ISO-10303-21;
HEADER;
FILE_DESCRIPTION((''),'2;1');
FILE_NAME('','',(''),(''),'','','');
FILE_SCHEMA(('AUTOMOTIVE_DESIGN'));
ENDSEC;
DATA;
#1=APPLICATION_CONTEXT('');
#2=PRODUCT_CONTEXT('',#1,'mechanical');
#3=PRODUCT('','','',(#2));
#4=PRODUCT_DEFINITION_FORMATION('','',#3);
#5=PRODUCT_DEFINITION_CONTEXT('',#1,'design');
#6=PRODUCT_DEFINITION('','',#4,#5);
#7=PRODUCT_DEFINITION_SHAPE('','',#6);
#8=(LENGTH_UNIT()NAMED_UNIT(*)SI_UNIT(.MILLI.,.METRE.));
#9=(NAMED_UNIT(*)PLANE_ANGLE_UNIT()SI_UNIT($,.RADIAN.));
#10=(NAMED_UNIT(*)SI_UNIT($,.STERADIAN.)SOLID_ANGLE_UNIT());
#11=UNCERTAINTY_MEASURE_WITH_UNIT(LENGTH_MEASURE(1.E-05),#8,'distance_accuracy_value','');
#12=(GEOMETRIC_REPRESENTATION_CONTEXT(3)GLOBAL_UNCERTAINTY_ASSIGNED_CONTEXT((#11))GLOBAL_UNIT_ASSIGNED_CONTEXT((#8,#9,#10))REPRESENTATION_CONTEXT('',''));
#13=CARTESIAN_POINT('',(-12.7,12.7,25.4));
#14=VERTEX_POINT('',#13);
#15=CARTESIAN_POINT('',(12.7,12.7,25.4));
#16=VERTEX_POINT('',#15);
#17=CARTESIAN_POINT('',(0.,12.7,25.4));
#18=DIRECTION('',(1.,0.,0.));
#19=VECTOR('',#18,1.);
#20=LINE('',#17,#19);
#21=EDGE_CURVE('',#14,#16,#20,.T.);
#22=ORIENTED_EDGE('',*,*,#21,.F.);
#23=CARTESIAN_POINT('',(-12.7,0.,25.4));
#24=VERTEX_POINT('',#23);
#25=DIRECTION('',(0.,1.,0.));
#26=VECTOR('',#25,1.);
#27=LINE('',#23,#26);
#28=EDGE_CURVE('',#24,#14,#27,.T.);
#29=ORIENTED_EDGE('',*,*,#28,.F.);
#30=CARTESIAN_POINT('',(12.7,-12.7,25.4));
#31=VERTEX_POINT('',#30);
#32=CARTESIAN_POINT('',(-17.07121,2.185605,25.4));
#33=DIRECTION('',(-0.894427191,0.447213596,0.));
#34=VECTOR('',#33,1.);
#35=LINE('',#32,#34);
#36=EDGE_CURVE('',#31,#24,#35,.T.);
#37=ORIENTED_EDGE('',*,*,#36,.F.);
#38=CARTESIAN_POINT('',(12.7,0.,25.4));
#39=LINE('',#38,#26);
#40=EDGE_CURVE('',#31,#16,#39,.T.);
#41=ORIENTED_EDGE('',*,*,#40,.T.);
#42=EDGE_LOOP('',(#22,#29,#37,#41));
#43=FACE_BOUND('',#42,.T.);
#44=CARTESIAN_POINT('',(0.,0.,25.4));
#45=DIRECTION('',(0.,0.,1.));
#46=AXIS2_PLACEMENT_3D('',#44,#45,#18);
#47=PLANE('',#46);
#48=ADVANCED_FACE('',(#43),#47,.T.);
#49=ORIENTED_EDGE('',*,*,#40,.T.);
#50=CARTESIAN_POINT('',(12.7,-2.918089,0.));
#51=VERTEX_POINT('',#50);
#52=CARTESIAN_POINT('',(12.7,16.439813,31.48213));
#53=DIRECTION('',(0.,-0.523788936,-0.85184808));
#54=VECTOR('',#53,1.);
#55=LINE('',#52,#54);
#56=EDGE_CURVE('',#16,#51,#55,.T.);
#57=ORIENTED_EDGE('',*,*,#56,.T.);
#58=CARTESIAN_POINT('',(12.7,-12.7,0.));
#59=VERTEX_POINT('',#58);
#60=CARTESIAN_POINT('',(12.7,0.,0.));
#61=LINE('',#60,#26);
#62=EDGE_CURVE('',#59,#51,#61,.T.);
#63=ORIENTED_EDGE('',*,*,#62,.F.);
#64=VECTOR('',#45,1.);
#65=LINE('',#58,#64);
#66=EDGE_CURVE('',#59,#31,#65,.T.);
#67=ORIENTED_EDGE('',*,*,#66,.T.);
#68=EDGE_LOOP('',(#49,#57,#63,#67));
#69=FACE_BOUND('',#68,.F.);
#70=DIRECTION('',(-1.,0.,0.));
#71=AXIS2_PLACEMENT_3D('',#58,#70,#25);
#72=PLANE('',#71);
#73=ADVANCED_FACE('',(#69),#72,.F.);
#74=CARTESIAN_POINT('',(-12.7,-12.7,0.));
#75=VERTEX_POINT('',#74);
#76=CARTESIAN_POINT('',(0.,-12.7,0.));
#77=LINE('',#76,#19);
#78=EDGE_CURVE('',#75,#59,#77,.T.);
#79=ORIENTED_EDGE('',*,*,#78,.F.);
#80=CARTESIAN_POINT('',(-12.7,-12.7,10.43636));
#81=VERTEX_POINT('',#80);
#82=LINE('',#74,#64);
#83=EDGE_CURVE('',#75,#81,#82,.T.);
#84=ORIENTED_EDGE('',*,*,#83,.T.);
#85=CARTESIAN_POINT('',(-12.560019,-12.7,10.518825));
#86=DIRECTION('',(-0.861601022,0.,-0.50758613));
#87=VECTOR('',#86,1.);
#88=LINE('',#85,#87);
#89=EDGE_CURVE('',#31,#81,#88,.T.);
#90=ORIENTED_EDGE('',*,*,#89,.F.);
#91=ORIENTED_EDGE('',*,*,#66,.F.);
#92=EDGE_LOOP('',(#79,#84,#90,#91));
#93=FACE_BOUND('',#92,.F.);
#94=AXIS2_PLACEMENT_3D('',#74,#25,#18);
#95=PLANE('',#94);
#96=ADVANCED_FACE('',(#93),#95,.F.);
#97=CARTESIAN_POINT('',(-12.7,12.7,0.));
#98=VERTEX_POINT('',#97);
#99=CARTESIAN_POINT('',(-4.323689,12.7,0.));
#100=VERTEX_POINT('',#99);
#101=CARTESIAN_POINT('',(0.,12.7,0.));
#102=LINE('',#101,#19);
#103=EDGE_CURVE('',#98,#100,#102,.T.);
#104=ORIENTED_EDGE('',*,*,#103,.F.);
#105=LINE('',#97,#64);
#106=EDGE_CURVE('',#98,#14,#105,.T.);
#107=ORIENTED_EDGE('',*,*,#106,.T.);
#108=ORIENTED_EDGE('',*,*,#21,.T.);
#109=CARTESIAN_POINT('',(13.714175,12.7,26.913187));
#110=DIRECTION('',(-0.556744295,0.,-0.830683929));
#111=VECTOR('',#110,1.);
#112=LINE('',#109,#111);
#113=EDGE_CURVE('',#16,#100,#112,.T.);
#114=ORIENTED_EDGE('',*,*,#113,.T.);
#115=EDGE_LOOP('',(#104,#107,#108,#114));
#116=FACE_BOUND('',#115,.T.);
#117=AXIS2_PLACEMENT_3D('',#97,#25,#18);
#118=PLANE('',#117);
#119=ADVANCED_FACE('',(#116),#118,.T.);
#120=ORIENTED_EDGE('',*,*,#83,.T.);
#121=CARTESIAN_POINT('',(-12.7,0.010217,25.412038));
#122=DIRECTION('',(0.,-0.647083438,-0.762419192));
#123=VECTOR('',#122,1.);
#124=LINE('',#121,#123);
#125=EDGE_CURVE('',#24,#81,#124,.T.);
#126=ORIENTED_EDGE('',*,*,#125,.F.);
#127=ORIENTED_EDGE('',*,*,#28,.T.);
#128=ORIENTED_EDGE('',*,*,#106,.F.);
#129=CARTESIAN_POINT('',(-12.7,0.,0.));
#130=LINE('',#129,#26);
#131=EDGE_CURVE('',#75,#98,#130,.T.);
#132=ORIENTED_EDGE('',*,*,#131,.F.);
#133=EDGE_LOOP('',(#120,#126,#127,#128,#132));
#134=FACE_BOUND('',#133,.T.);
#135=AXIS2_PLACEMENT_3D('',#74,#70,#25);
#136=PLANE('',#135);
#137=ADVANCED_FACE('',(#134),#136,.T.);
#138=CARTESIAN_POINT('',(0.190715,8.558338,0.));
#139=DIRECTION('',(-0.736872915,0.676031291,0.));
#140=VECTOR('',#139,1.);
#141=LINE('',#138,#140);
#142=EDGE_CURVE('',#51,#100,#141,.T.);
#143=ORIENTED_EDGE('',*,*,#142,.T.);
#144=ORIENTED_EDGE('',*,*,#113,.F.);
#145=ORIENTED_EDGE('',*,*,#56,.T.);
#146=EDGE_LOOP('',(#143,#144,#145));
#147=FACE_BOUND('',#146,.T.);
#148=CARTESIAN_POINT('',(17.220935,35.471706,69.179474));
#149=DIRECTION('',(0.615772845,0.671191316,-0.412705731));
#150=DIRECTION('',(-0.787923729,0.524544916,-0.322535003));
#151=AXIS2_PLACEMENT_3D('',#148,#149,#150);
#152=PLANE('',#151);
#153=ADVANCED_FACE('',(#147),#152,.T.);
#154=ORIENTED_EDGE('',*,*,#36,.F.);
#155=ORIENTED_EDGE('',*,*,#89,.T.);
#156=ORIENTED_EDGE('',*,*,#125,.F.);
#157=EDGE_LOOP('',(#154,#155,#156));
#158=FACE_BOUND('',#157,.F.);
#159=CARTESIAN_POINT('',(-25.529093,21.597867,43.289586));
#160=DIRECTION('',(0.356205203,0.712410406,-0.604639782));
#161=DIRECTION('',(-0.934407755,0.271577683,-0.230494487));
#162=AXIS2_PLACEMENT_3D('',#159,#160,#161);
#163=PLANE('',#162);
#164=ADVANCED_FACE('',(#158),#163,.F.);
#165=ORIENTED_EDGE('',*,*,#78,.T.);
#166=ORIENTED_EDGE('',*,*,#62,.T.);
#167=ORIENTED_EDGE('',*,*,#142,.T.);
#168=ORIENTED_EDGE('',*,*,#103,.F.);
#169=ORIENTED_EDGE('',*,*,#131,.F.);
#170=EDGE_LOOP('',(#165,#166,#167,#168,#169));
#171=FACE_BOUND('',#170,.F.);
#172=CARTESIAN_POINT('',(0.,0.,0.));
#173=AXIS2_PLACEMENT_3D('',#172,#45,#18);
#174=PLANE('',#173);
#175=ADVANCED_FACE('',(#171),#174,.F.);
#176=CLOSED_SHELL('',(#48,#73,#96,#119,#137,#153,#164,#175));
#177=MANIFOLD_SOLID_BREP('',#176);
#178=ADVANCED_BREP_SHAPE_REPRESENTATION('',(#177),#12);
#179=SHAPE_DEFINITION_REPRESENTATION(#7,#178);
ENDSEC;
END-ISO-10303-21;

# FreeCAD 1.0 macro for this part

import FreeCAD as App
import Part
import Sketcher

V = App.Vector
Q = App.Units.Quantity

doc = App.newDocument("Part")
body = doc.addObject("PartDesign::Body", "Body")

sketch1 = body.newObject("Sketcher::SketchObject", "Sketch")
sketch1.AttachmentSupport = (doc.getObject("XY_Plane"), [""])
sketch1.MapMode = "FlatFace"
sketch1.addGeometry([
    Part.LineSegment(V(-13, 13, 0), V(-13, -13, 0)),
    Part.LineSegment(V(-13, -13, 0), V(13, -13, 0)),
    Part.LineSegment(V(13, -13, 0), V(13, 13, 0)),
    Part.LineSegment(V(13, 13, 0), V(-13, 13, 0)),
], False)
sketch1.addConstraint([
    Sketcher.Constraint("Coincident", 0, 2, 1, 1),
    Sketcher.Constraint("Coincident", 1, 2, 2, 1),
    Sketcher.Constraint("Coincident", 2, 2, 3, 1),
    Sketcher.Constraint("Coincident", 3, 2, 0, 1),
    Sketcher.Constraint("Vertical", 0),
    Sketcher.Constraint("Horizontal", 1),
    Sketcher.Constraint("Vertical", 2),
    Sketcher.Constraint("Horizontal", 3),
    Sketcher.Constraint("Symmetric", 0, 2, 2, 2, -1, 1),
    Sketcher.Constraint("Equal", 3, 0),
    Sketcher.Constraint("DistanceX", 1, 1, 1, 2, Q("1 in")),
])
pad1 = body.newObject("PartDesign::Pad", "Pad")
pad1.Profile = sketch1
pad1.Length = Q("1 in")

sketch2 = body.newObject("Sketcher::SketchObject", "Sketch001")
sketch2.Placement = App.Placement(V(-7.08195, -14.163899, 12.02124), App.Rotation(V(-0.934407755, 0.271577683, -0.230494487), V(0, 0.647083437, 0.762419192), V(0.356205203, 0.712410406, -0.604639782), "ZXY"))
sketch2.addGeometry([
    Part.LineSegment(V(-24, 114, 0), V(-24, -20, 0)),
    Part.LineSegment(V(-24, -20, 0), V(63, -20, 0)),
    Part.LineSegment(V(63, -20, 0), V(63, 114, 0)),
    Part.LineSegment(V(63, 114, 0), V(-24, 114, 0)),
], False)
sketch2.addConstraint([
    Sketcher.Constraint("Coincident", 0, 2, 1, 1),
    Sketcher.Constraint("Coincident", 1, 2, 2, 1),
    Sketcher.Constraint("Coincident", 2, 2, 3, 1),
    Sketcher.Constraint("Coincident", 3, 2, 0, 1),
    Sketcher.Constraint("Vertical", 0),
    Sketcher.Constraint("Horizontal", 1),
    Sketcher.Constraint("Vertical", 2),
    Sketcher.Constraint("Horizontal", 3),
    Sketcher.Constraint("DistanceX", 1, 1, 1, 2, Q("87.41593 mm")),
    Sketcher.Constraint("DistanceY", 0, 2, 0, 1, Q("133.633829 mm")),
    Sketcher.Constraint("DistanceY", 0, 2, -1, 1, Q("19.836482 mm")),
    Sketcher.Constraint("DistanceX", 0, 2, -1, 1, Q("23.965895 mm")),
])
pocket1 = body.newObject("PartDesign::Pocket", "Pocket")
pocket1.Profile = sketch2
pocket1.Length = Q("1 in")

sketch3 = body.newObject("Sketcher::SketchObject", "Sketch002")
sketch3.Placement = App.Placement(V(3.609488, 3.934335, -2.419165), App.Rotation(V(-0.787923729, 0.524544916, -0.322535003), V(0, 0.523788935, 0.85184808), V(0.615772845, 0.671191316, -0.412705731), "ZXY"))
sketch3.addGeometry([
    Part.LineSegment(V(-67, 189, 0), V(-67, -34, 0)),
    Part.LineSegment(V(-67, -34, 0), V(33, -34, 0)),
    Part.LineSegment(V(33, -34, 0), V(33, 189, 0)),
    Part.LineSegment(V(33, 189, 0), V(-67, 189, 0)),
], False)
sketch3.addConstraint([
    Sketcher.Constraint("Coincident", 0, 2, 1, 1),
    Sketcher.Constraint("Coincident", 1, 2, 2, 1),
    Sketcher.Constraint("Coincident", 2, 2, 3, 1),
    Sketcher.Constraint("Coincident", 3, 2, 0, 1),
    Sketcher.Constraint("Vertical", 0),
    Sketcher.Constraint("Horizontal", 1),
    Sketcher.Constraint("Vertical", 2),
    Sketcher.Constraint("Horizontal", 3),
    Sketcher.Constraint("DistanceX", 1, 1, 1, 2, Q("100.105885 mm")),
    Sketcher.Constraint("DistanceY", 0, 2, 0, 1, Q("223.738633 mm")),
    Sketcher.Constraint("DistanceX", -1, 1, 1, 2, Q("32.777861 mm")),
    Sketcher.Constraint("DistanceY", 0, 2, -1, 1, Q("34.359228 mm")),
])
pocket2 = body.newObject("PartDesign::Pocket", "Pocket001")
pocket2.Profile = sketch3
pocket2.Length = Q("1 in")
pocket2.Reversed = True

doc.recompute()
